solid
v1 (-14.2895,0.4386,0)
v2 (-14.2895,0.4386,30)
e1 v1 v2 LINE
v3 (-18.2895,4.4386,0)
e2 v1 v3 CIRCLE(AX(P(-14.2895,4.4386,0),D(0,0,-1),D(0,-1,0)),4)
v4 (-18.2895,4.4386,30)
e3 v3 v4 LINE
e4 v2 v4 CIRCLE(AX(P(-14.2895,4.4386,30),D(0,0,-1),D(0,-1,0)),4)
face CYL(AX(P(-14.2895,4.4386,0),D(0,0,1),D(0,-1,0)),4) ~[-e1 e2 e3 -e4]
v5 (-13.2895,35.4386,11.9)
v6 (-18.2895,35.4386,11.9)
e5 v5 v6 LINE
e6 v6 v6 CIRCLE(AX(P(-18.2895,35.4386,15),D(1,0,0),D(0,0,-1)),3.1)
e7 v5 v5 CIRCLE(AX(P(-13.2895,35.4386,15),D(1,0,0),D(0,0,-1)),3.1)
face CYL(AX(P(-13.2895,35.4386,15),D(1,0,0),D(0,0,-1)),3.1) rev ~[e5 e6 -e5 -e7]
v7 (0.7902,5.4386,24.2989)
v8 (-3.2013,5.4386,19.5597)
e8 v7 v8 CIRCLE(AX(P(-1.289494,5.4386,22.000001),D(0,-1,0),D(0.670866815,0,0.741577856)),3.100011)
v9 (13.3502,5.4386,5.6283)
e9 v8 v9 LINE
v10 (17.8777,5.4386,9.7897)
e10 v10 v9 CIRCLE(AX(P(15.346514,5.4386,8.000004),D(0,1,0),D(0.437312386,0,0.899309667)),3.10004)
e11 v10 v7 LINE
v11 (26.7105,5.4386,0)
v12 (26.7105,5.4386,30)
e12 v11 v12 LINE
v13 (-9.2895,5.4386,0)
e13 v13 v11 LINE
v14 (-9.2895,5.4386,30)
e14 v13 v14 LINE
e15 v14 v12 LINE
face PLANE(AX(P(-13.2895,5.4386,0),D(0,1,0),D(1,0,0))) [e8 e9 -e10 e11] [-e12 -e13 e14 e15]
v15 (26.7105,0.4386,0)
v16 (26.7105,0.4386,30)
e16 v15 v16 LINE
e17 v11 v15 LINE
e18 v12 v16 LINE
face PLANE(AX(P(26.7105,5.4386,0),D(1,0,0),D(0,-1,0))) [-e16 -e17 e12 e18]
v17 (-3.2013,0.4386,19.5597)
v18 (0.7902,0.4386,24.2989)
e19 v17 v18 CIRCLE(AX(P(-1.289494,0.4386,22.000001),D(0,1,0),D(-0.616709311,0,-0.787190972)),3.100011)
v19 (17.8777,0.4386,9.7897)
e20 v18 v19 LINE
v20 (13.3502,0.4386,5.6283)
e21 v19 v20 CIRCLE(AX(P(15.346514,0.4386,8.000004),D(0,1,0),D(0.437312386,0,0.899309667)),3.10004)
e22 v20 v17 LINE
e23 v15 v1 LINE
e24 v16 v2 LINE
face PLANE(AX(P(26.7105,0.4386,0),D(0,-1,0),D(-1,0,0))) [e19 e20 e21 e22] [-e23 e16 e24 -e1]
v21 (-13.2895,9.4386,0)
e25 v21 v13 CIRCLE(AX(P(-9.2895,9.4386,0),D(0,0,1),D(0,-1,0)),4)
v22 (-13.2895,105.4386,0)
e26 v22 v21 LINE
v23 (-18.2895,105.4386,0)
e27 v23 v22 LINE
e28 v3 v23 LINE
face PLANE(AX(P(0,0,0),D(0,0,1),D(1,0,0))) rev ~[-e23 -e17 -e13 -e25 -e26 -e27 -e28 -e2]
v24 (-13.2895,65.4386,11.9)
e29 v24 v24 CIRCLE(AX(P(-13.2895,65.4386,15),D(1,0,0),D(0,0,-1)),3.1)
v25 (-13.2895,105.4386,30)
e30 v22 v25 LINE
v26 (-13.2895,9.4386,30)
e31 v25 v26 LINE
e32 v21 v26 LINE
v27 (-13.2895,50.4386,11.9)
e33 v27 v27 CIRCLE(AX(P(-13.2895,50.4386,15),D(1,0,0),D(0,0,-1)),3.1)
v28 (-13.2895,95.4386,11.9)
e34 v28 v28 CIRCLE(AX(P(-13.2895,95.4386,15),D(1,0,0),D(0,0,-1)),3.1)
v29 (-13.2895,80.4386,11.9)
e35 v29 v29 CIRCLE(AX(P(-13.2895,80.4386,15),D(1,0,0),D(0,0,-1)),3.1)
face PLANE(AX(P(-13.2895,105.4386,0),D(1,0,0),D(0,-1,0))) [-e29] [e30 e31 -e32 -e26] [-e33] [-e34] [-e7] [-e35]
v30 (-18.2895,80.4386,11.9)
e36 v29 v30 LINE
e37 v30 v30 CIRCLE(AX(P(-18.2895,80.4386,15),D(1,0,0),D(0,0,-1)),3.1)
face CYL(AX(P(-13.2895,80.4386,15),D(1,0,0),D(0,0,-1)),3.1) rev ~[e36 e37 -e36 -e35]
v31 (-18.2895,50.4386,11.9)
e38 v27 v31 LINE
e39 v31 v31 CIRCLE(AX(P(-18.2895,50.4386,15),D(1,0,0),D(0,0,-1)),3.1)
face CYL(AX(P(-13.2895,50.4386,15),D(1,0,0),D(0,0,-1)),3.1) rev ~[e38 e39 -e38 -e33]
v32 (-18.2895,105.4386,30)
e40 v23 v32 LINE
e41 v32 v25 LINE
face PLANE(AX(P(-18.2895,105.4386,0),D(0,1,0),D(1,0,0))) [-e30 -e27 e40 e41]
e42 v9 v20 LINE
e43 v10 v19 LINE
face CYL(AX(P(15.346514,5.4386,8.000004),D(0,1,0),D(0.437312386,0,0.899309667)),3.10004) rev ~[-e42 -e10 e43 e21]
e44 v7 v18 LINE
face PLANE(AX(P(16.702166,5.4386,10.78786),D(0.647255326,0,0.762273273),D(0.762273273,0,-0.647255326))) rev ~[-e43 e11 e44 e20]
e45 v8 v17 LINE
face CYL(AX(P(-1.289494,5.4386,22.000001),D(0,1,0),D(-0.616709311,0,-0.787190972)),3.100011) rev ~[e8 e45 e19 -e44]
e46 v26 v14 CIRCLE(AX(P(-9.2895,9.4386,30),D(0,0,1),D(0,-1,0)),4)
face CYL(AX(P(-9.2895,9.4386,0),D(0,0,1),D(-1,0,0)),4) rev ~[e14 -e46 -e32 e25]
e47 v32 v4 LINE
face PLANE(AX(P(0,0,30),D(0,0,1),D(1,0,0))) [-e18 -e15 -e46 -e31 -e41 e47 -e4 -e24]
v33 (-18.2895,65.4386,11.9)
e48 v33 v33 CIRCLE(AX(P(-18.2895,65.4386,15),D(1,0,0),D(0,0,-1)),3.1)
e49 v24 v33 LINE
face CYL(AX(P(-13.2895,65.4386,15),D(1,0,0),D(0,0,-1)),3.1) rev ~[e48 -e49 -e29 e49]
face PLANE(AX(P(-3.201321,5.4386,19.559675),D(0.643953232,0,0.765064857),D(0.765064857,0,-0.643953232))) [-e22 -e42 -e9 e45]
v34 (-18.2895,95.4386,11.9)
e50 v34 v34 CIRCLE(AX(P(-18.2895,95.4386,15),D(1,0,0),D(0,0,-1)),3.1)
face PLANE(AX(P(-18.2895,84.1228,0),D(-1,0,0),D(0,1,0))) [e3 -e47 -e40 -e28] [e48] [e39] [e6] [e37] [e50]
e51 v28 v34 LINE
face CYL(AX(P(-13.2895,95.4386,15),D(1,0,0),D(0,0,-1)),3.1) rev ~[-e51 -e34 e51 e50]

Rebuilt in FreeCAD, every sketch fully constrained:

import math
import FreeCAD as App
import Part
import Sketcher


def edges_at(feature, points):
    """Names of the edges that pass closest to the given points."""
    edges = feature.Shape.Edges
    near = lambda p: min(range(len(edges)), key=lambda i: edges[i].distToShape(Part.Vertex(*p))[0])
    return sorted({f"Edge{near(p) + 1}" for p in points})

doc = App.newDocument("Part")
params = doc.addObject("Spreadsheet::Sheet", "Params")
for row, (alias, value) in enumerate([
    ("sketch1_width", "5 mm"),
    ("sketch1_width2", "40 mm"),
    ("sketch1_height", "100 mm"),
    ("pad1_length", "30 mm"),
    ("fillet_radius", "4 mm"),
    ("sketch2_diameter", "6.2 mm"),
    ("sketch3_radius", "3.1 mm"),
    ("sketch3_radius2", "3.1 mm"),
], start=1):
    params.set(f"A{row}", alias)
    params.set(f"B{row}", "=" + value)
    params.setAlias(f"B{row}", alias)

body = doc.addObject("PartDesign::Body", "Body")

# Sketch on XY plane
sketch1 = doc.addObject("Sketcher::SketchObject", "Sketch")
body.addObject(sketch1)
sketch1.AttachmentSupport = (doc.XY_Plane, [""])
sketch1.MapMode = "FlatFace"
sketch1.addGeometry([
    Part.LineSegment(App.Vector(-13, 105, 0), App.Vector(-18, 105, 0)),  # 0
    Part.LineSegment(App.Vector(-18, 105, 0), App.Vector(-18, 0, 0)),  # 1
    Part.LineSegment(App.Vector(-18, 0, 0), App.Vector(27, 0, 0)),  # 2
    Part.LineSegment(App.Vector(27, 0, 0), App.Vector(27, 5, 0)),  # 3
    Part.LineSegment(App.Vector(27, 5, 0), App.Vector(-13, 5, 0)),  # 4
    Part.LineSegment(App.Vector(-13, 5, 0), App.Vector(-13, 105, 0)),  # 5
], False)
sketch1.addConstraint([
    Sketcher.Constraint("Coincident", 0, 2, 1, 1),
    Sketcher.Constraint("Coincident", 1, 2, 2, 1),
    Sketcher.Constraint("Coincident", 2, 2, 3, 1),
    Sketcher.Constraint("Coincident", 3, 2, 4, 1),
    Sketcher.Constraint("Coincident", 4, 2, 5, 1),
    Sketcher.Constraint("Coincident", 5, 2, 0, 1),
    Sketcher.Constraint("Horizontal", 0),
    Sketcher.Constraint("Vertical", 1),
    Sketcher.Constraint("Horizontal", 2),
    Sketcher.Constraint("Vertical", 3),
    Sketcher.Constraint("Horizontal", 4),
    Sketcher.Constraint("Vertical", 5),
    Sketcher.Constraint("Equal", 0, 3),
    Sketcher.Constraint("DistanceX", 0, 2, 0, 1, 5.0),
    Sketcher.Constraint("DistanceX", 4, 2, 4, 1, 40.0),
    Sketcher.Constraint("DistanceY", 5, 1, 5, 2, 100.0),
    Sketcher.Constraint("DistanceX", 0, 2, -1, 1, 18.2895),
    Sketcher.Constraint("DistanceY", -1, 1, 0, 2, 105.4386),
])
sketch1.setExpression("Constraints[13]", "Params.sketch1_width")
sketch1.setExpression("Constraints[14]", "Params.sketch1_width2")
sketch1.setExpression("Constraints[15]", "Params.sketch1_height")
pad1 = doc.addObject("PartDesign::Pad", "Pad")
body.addObject(pad1)
pad1.Profile = sketch1
pad1.setExpression("Length", "Params.pad1_length")
doc.recompute()

fillet = doc.addObject("PartDesign::Fillet", "Fillet")
body.addObject(fillet)
fillet.Base = (pad1, edges_at(pad1, [(-18.29, 0.439, 15), (-13.29, 5.439, 15)]))
fillet.setExpression("Radius", "Params.fillet_radius")

# Sketch on YZ plane
sketch2 = doc.addObject("Sketcher::SketchObject", "Sketch001")
body.addObject(sketch2)
sketch2.AttachmentSupport = (doc.YZ_Plane, [""])
sketch2.MapMode = "FlatFace"
sketch2.AttachmentOffset = App.Placement(App.Vector(0, 0, -13.2895), App.Rotation())
sketch2.addGeometry([
    Part.Circle(App.Vector(95.4, 15, 0), App.Vector(0, 0, 1), 3.1),  # 0
    Part.Circle(App.Vector(80.4, 15, 0), App.Vector(0, 0, 1), 3.1),  # 1
    Part.Circle(App.Vector(65.4, 15, 0), App.Vector(0, 0, 1), 3.1),  # 2
    Part.Circle(App.Vector(50.4, 15, 0), App.Vector(0, 0, 1), 3.1),  # 3
    Part.Circle(App.Vector(35.4, 15, 0), App.Vector(0, 0, 1), 3.1),  # 4
], False)
sketch2.addConstraint([
    Sketcher.Constraint("Equal", 0, 1),
    Sketcher.Constraint("Equal", 1, 2),
    Sketcher.Constraint("Equal", 2, 3),
    Sketcher.Constraint("Equal", 3, 4),
    Sketcher.Constraint("Horizontal", 0, 3, 1, 3),
    Sketcher.Constraint("Horizontal", 1, 3, 2, 3),
    Sketcher.Constraint("Horizontal", 2, 3, 3, 3),
    Sketcher.Constraint("Horizontal", 3, 3, 4, 3),
    Sketcher.Constraint("Diameter", 0, 6.2),
    Sketcher.Constraint("DistanceY", -1, 1, 0, 3, 15.0),
    Sketcher.Constraint("DistanceX", 1, 3, 0, 3, 15.0),
    Sketcher.Constraint("DistanceX", 2, 3, 1, 3, 15.0),
    Sketcher.Constraint("DistanceX", 3, 3, 2, 3, 15.0),
    Sketcher.Constraint("DistanceX", 4, 3, 3, 3, 15.0),
    Sketcher.Constraint("DistanceX", -1, 1, 0, 3, 95.4386),
])
sketch2.setExpression("Constraints[8]", "Params.sketch2_diameter")
pocket1 = doc.addObject("PartDesign::Pocket", "Pocket")
body.addObject(pocket1)
pocket1.Profile = sketch2
pocket1.Type = "ThroughAll"

# Sketch on XZ plane
sketch3 = doc.addObject("Sketcher::SketchObject", "Sketch002")
body.addObject(sketch3)
sketch3.AttachmentSupport = (doc.XZ_Plane, [""])
sketch3.MapMode = "FlatFace"
sketch3.AttachmentOffset = App.Placement(App.Vector(0, 0, -5.4386), App.Rotation())
sketch3.addGeometry([
    Part.LineSegment(App.Vector(13.3502, 5.6283, 0), App.Vector(-3.201321, 19.559675, 0)),
    Part.ArcOfCircle(Part.Circle(App.Vector(-1.2895, 22, 0), App.Vector(0, 0, 1), 3.100007), math.radians(47.865929), math.radians(231.923847)),
    Part.LineSegment(App.Vector(0.7902, 24.2989, 0), App.Vector(17.8777, 9.7897, 0)),
    Part.ArcOfCircle(Part.Circle(App.Vector(15.3465, 8, 0), App.Vector(0, 0, 1), 3.10005), math.radians(-130.087886), math.radians(35.262448)),
], False)
sketch3.addConstraint([
    Sketcher.Constraint("Coincident", 0, 2, 1, 2),
    Sketcher.Constraint("Coincident", 1, 1, 2, 1),
    Sketcher.Constraint("Coincident", 2, 2, 3, 2),
    Sketcher.Constraint("Coincident", 3, 1, 0, 1),
    Sketcher.Constraint("Radius", 1, 3.1),
    Sketcher.Constraint("Radius", 3, 3.1),
    Sketcher.Constraint("DistanceY", -1, 1, 3, 3, 8.0),
    Sketcher.Constraint("DistanceY", -1, 1, 1, 3, 22.0),
    Sketcher.Constraint("DistanceY", 2, 2, 0, 2, 9.77),
    Sketcher.Constraint("DistanceX", 1, 1, 3, 1, 12.56),
    Sketcher.Constraint("DistanceY", -1, 1, 1, 1, 24.299),
    Sketcher.Constraint("DistanceX", 1, 3, 3, 3, 16.636),
    Sketcher.Constraint("DistanceX", 0, 2, 2, 2, 21.079),
    Sketcher.Constraint("DistanceX", 1, 3, -1, 1, 1.2895),
])
sketch3.setExpression("Constraints[4]", "Params.sketch3_radius")
sketch3.setExpression("Constraints[5]", "Params.sketch3_radius2")
pocket2 = doc.addObject("PartDesign::Pocket", "Pocket001")
body.addObject(pocket2)
pocket2.Profile = sketch3
pocket2.Type = "ThroughAll"
pocket2.Reversed = True

doc.recompute()
